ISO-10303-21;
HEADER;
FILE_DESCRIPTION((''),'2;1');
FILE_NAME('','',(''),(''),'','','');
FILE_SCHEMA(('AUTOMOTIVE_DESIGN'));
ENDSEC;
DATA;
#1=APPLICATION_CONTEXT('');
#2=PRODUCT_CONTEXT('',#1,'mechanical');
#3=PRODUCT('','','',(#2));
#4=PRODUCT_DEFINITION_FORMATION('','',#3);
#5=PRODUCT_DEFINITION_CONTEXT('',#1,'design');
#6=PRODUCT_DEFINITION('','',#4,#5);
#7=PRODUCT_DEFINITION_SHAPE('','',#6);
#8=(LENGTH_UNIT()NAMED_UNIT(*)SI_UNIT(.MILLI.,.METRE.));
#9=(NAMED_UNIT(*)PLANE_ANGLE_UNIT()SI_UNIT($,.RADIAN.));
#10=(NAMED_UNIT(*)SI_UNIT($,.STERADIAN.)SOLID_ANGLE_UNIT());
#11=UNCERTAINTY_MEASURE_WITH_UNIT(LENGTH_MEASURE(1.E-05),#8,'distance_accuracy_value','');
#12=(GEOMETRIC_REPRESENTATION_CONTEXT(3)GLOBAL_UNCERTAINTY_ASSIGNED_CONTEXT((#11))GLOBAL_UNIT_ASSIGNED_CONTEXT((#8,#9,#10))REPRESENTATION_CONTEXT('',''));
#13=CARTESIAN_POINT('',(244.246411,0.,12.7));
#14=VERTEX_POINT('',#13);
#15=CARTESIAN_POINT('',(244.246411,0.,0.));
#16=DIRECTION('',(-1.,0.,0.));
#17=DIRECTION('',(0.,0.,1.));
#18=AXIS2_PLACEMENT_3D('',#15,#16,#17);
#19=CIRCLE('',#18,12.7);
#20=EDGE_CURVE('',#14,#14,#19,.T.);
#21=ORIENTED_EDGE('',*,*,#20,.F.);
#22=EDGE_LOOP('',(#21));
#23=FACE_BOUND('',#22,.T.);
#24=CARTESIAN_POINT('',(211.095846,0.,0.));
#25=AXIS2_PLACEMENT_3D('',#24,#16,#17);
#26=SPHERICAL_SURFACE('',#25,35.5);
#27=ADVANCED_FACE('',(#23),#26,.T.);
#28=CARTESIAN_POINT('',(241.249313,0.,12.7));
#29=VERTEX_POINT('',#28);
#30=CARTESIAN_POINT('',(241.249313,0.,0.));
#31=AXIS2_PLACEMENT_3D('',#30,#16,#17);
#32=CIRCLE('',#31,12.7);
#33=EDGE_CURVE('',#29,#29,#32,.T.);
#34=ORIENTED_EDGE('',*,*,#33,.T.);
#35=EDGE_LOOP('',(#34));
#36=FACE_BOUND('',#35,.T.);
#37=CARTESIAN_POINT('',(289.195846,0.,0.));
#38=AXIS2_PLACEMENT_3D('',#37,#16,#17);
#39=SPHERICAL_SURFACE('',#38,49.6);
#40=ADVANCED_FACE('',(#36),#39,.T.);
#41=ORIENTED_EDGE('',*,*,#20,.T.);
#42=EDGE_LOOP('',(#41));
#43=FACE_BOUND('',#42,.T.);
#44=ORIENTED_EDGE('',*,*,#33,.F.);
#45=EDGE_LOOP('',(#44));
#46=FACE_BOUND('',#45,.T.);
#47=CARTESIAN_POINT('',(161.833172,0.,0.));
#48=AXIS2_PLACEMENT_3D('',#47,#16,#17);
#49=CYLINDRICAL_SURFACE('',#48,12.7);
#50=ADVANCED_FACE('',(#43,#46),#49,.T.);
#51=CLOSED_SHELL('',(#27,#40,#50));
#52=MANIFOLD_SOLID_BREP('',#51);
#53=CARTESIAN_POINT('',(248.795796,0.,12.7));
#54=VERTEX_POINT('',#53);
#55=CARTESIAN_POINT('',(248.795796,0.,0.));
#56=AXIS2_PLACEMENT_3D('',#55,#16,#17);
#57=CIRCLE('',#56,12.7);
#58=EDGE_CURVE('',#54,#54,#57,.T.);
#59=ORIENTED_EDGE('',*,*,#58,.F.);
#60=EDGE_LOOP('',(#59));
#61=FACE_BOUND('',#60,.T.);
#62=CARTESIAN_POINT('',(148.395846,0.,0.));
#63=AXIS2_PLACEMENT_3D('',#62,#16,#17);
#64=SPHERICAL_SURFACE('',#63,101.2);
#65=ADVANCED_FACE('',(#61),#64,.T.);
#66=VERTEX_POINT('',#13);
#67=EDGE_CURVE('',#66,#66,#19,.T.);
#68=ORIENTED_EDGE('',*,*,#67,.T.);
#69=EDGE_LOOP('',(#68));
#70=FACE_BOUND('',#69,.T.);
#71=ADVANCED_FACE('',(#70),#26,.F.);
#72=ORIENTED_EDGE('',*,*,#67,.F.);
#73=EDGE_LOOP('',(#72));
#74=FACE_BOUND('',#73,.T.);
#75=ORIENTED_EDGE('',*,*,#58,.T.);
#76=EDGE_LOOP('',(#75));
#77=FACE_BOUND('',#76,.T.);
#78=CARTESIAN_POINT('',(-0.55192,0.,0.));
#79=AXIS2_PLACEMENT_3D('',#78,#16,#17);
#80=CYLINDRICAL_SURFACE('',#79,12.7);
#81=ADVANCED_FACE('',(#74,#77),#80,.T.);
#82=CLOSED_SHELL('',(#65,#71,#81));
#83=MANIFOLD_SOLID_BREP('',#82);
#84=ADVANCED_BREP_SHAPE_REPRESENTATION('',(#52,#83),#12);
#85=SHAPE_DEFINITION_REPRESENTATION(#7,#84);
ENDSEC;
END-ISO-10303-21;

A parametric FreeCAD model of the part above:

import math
import FreeCAD as App
import Part
import Sketcher
Q = App.Units.Quantity

doc = App.newDocument("Part")
body = doc.addObject("PartDesign::Body", "Body")

# Sketch on XZ plane
sketch1 = doc.addObject("Sketcher::SketchObject", "Sketch")
body.addObject(sketch1)
sketch1.AttachmentSupport = (doc.XZ_Plane, [""])
sketch1.MapMode = "FlatFace"
sketch1.addGeometry(Part.ArcOfCircle(Part.Circle(App.Vector(289.195846, 0, 0), App.Vector(0, 0, 1), 49.6), math.radians(-180), math.radians(-165.164284)), False)
sketch1.addGeometry(Part.LineSegment(App.Vector(239.595846, 0, 0), App.Vector(246.595846, 0, 0)), False)
sketch1.addGeometry(Part.ArcOfCircle(Part.Circle(App.Vector(211.095846, 0, 0), App.Vector(0, 0, 1), 35.5), math.radians(-20.961864), math.radians(0)), False)
sketch1.addGeometry(Part.LineSegment(App.Vector(244.246411, -12.7, 0), App.Vector(241.249313, -12.7, 0)), False)
sketch1.addConstraint(Sketcher.Constraint("Coincident", 0, 1, 1, 1))
sketch1.addConstraint(Sketcher.Constraint("Coincident", 1, 2, 2, 2))
sketch1.addConstraint(Sketcher.Constraint("Coincident", 2, 1, 3, 1))
sketch1.addConstraint(Sketcher.Constraint("Coincident", 3, 2, 0, 2))
sketch1.addConstraint(Sketcher.Constraint("Horizontal", 1))
sketch1.addConstraint(Sketcher.Constraint("Horizontal", 3))
sketch1.addConstraint(Sketcher.Constraint("PointOnObject", 0, 3, -1))
sketch1.addConstraint(Sketcher.Constraint("PointOnObject", 2, 3, -1))
sketch1.addConstraint(Sketcher.Constraint("PointOnObject", 0, 1, -1))
sketch1.addConstraint(Sketcher.Constraint("Radius", 0, Q("49.6 mm")))
sketch1.addConstraint(Sketcher.Constraint("Radius", 2, Q("35.5 mm")))
sketch1.addConstraint(Sketcher.Constraint("DistanceX", 1, 1, 1, 2, Q("7 mm")))
sketch1.addConstraint(Sketcher.Constraint("DistanceY", 2, 1, -1, 1, Q("12.7 mm")))
sketch1.addConstraint(Sketcher.Constraint("DistanceX", -1, 1, 2, 1, Q("244.246411 mm")))
revolution = doc.addObject("PartDesign::Revolution", "Revolution")
body.addObject(revolution)
revolution.Profile = sketch1
revolution.ReferenceAxis = (sketch1, ["H_Axis"])
revolution.Angle = 360
body2 = doc.addObject("PartDesign::Body", "Body001")

# Sketch on XZ plane
sketch2 = doc.addObject("Sketcher::SketchObject", "Sketch001")
body2.addObject(sketch2)
sketch2.AttachmentSupport = (doc.getObject("XZ_Plane001"), [""])
sketch2.MapMode = "FlatFace"
sketch2.addGeometry(Part.LineSegment(App.Vector(248.795796, -12.7, 0), App.Vector(244.246411, -12.7, 0)), False)
sketch2.addGeometry(Part.ArcOfCircle(Part.Circle(App.Vector(211.095846, 0, 0), App.Vector(0, 0, 1), 35.5), math.radians(-20.961864), math.radians(0)), False)
sketch2.addGeometry(Part.LineSegment(App.Vector(246.595846, 0, 0), App.Vector(249.595846, 0, 0)), False)
sketch2.addGeometry(Part.ArcOfCircle(Part.Circle(App.Vector(148.395846, 0, 0), App.Vector(0, 0, 1), 101.2), math.radians(-7.209289), math.radians(0)), False)
sketch2.addConstraint(Sketcher.Constraint("Coincident", 0, 2, 1, 1))
sketch2.addConstraint(Sketcher.Constraint("Coincident", 1, 2, 2, 1))
sketch2.addConstraint(Sketcher.Constraint("Coincident", 2, 2, 3, 2))
sketch2.addConstraint(Sketcher.Constraint("Coincident", 3, 1, 0, 1))
sketch2.addConstraint(Sketcher.Constraint("Horizontal", 0))
sketch2.addConstraint(Sketcher.Constraint("Horizontal", 2))
sketch2.addConstraint(Sketcher.Constraint("PointOnObject", 1, 3, -1))
sketch2.addConstraint(Sketcher.Constraint("PointOnObject", 3, 3, -1))
sketch2.addConstraint(Sketcher.Constraint("PointOnObject", 1, 2, -1))
sketch2.addConstraint(Sketcher.Constraint("Radius", 1, Q("35.5 mm")))
sketch2.addConstraint(Sketcher.Constraint("Radius", 3, Q("101.2 mm")))
sketch2.addConstraint(Sketcher.Constraint("DistanceX", 2, 1, 2, 2, Q("3 mm")))
sketch2.addConstraint(Sketcher.Constraint("DistanceY", 0, 2, -1, 1, Q("12.7 mm")))
sketch2.addConstraint(Sketcher.Constraint("DistanceX", -1, 1, 0, 2, Q("244.246411 mm")))
revolution2 = doc.addObject("PartDesign::Revolution", "Revolution001")
body2.addObject(revolution2)
revolution2.Profile = sketch2
revolution2.ReferenceAxis = (sketch2, ["H_Axis"])
revolution2.Angle = 360

doc.recompute()
